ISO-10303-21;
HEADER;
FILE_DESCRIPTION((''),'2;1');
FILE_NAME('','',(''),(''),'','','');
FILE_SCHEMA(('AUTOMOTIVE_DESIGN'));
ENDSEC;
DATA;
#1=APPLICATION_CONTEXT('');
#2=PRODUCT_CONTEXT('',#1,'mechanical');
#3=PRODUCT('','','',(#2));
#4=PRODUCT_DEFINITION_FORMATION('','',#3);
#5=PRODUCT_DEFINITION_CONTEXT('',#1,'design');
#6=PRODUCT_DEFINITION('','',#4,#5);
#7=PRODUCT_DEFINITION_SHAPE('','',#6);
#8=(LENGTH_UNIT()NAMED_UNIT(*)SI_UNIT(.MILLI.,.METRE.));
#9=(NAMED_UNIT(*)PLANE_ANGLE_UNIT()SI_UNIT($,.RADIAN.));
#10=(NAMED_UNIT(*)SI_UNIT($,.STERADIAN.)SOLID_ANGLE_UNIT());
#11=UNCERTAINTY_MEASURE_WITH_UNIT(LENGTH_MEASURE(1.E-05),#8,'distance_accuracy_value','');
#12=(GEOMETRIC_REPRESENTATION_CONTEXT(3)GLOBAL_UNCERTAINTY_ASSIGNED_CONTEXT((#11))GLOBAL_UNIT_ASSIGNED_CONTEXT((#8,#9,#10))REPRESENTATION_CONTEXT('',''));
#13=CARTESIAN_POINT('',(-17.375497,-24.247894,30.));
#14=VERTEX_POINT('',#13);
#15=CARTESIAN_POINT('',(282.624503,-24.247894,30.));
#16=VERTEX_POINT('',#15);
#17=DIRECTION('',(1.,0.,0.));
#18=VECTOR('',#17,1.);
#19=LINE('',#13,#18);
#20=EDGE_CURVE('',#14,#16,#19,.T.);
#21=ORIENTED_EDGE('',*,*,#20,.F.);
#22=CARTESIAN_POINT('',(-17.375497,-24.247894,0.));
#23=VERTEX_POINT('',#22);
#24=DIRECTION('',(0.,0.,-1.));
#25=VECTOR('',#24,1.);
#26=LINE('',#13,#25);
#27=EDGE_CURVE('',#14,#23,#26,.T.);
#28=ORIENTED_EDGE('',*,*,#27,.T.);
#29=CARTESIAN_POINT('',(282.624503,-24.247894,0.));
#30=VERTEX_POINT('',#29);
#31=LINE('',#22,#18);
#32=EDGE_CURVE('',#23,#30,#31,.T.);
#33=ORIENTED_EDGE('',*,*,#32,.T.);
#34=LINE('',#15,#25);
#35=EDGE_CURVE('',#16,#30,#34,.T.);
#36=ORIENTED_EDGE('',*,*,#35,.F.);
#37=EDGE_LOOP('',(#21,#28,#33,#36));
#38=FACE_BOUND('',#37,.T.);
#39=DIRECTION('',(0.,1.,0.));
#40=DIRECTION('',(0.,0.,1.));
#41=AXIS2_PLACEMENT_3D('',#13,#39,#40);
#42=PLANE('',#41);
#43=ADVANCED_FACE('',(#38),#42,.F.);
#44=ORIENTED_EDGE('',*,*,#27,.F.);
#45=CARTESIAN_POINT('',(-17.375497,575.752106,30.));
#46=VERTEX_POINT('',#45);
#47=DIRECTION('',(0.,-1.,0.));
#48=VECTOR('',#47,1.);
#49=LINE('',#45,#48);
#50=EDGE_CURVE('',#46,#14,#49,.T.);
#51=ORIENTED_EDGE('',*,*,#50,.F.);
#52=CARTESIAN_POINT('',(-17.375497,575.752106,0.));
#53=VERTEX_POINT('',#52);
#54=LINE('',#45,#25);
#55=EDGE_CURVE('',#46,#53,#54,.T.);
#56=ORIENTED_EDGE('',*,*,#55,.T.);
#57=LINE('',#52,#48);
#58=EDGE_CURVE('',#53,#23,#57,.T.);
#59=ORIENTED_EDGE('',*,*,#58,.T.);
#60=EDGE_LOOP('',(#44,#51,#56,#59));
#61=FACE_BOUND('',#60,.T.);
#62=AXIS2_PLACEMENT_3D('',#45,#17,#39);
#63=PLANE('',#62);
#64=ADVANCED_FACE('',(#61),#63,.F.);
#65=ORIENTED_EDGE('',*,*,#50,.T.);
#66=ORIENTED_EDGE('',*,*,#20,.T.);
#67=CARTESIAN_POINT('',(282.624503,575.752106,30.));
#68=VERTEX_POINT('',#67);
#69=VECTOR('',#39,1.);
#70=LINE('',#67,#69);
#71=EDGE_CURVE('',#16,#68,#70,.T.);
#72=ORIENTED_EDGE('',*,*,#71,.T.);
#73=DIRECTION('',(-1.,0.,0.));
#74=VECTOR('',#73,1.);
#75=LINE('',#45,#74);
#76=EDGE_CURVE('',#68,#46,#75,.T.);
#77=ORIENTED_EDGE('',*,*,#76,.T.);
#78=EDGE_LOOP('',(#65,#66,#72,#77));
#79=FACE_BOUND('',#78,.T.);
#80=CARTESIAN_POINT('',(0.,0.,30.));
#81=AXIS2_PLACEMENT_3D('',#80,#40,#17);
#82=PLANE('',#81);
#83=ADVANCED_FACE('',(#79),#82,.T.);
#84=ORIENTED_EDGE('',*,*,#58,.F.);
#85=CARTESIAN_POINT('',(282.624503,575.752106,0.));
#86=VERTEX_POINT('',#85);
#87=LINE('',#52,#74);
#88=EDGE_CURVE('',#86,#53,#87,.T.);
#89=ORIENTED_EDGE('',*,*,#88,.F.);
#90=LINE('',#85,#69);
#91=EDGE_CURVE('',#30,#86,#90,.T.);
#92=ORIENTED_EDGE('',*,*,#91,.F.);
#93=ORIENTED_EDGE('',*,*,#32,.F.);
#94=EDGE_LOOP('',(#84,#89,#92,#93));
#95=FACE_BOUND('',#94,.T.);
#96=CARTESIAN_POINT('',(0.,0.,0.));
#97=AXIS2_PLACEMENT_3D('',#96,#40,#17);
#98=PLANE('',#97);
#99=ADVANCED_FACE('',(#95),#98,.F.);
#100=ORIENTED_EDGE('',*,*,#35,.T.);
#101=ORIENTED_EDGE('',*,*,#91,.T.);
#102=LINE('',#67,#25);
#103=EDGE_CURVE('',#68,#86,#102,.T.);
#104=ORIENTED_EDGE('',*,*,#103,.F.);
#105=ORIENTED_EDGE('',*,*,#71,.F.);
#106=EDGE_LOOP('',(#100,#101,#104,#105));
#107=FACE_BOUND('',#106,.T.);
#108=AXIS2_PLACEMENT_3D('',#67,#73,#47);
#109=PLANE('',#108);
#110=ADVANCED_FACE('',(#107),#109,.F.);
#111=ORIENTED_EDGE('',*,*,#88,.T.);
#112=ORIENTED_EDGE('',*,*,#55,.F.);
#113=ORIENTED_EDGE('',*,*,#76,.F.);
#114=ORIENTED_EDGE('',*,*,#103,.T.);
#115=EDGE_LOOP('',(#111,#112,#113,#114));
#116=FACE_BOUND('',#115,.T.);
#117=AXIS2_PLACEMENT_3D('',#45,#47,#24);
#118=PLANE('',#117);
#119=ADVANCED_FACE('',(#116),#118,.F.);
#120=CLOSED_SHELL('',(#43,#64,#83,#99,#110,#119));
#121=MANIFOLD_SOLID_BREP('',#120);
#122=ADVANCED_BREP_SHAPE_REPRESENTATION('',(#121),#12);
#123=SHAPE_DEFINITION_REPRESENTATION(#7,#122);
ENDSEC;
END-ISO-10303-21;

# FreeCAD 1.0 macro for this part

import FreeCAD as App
import Part
import Sketcher
from FreeCAD import Vector
Q = App.Units.Quantity


def add_polygon(sketch, points):
    """Adds a closed chain of lines whose ends are joined by coincident constraints."""
    first, n = sketch.GeometryCount, len(points)
    for a, b in zip(points, points[1:] + points[:1]):
        sketch.addGeometry(Part.LineSegment(App.Vector(*a, 0), App.Vector(*b, 0)), False)
    for i in range(n):
        sketch.addConstraint(Sketcher.Constraint("Coincident", first + i, 2, first + (i + 1) % n, 1))

doc = App.newDocument("Part")
params = doc.addObject("Spreadsheet::Sheet", "Params")
for row, (alias, value) in enumerate([
    ("sketch1_width", "300 mm"),
    ("sketch1_height", "600 mm"),
    ("pad1_length", "30 mm"),
], start=1):
    params.set(f"A{row}", alias)
    params.set(f"B{row}", "=" + value)
    params.setAlias(f"B{row}", alias)

body = doc.addObject("PartDesign::Body", "Body")

sketch1 = body.newObject("Sketcher::SketchObject", "Sketch")
sketch1.AttachmentSupport = (doc.getObject("XY_Plane"), [""])
sketch1.MapMode = "FlatFace"
add_polygon(sketch1, [(-17, 576), (-17, -24), (283, -24), (283, 576)])
sketch1.addConstraint([
    Sketcher.Constraint("Vertical", 0),
    Sketcher.Constraint("Horizontal", 1),
    Sketcher.Constraint("Vertical", 2),
    Sketcher.Constraint("Horizontal", 3),
    Sketcher.Constraint("DistanceX", 1, 1, 1, 2, Q("300 mm")),
    Sketcher.Constraint("DistanceY", 0, 2, 0, 1, Q("600 mm")),
    Sketcher.Constraint("DistanceX", 0, 2, -1, 1, Q("17.375497 mm")),
    Sketcher.Constraint("DistanceY", 0, 2, -1, 1, Q("24.247894 mm")),
])
sketch1.setExpression("Constraints[8]", "Params.sketch1_width")
sketch1.setExpression("Constraints[9]", "Params.sketch1_height")
pad1 = body.newObject("PartDesign::Pad", "Pad")
pad1.Profile = sketch1
pad1.setExpression("Length", "Params.pad1_length")

doc.recompute()
